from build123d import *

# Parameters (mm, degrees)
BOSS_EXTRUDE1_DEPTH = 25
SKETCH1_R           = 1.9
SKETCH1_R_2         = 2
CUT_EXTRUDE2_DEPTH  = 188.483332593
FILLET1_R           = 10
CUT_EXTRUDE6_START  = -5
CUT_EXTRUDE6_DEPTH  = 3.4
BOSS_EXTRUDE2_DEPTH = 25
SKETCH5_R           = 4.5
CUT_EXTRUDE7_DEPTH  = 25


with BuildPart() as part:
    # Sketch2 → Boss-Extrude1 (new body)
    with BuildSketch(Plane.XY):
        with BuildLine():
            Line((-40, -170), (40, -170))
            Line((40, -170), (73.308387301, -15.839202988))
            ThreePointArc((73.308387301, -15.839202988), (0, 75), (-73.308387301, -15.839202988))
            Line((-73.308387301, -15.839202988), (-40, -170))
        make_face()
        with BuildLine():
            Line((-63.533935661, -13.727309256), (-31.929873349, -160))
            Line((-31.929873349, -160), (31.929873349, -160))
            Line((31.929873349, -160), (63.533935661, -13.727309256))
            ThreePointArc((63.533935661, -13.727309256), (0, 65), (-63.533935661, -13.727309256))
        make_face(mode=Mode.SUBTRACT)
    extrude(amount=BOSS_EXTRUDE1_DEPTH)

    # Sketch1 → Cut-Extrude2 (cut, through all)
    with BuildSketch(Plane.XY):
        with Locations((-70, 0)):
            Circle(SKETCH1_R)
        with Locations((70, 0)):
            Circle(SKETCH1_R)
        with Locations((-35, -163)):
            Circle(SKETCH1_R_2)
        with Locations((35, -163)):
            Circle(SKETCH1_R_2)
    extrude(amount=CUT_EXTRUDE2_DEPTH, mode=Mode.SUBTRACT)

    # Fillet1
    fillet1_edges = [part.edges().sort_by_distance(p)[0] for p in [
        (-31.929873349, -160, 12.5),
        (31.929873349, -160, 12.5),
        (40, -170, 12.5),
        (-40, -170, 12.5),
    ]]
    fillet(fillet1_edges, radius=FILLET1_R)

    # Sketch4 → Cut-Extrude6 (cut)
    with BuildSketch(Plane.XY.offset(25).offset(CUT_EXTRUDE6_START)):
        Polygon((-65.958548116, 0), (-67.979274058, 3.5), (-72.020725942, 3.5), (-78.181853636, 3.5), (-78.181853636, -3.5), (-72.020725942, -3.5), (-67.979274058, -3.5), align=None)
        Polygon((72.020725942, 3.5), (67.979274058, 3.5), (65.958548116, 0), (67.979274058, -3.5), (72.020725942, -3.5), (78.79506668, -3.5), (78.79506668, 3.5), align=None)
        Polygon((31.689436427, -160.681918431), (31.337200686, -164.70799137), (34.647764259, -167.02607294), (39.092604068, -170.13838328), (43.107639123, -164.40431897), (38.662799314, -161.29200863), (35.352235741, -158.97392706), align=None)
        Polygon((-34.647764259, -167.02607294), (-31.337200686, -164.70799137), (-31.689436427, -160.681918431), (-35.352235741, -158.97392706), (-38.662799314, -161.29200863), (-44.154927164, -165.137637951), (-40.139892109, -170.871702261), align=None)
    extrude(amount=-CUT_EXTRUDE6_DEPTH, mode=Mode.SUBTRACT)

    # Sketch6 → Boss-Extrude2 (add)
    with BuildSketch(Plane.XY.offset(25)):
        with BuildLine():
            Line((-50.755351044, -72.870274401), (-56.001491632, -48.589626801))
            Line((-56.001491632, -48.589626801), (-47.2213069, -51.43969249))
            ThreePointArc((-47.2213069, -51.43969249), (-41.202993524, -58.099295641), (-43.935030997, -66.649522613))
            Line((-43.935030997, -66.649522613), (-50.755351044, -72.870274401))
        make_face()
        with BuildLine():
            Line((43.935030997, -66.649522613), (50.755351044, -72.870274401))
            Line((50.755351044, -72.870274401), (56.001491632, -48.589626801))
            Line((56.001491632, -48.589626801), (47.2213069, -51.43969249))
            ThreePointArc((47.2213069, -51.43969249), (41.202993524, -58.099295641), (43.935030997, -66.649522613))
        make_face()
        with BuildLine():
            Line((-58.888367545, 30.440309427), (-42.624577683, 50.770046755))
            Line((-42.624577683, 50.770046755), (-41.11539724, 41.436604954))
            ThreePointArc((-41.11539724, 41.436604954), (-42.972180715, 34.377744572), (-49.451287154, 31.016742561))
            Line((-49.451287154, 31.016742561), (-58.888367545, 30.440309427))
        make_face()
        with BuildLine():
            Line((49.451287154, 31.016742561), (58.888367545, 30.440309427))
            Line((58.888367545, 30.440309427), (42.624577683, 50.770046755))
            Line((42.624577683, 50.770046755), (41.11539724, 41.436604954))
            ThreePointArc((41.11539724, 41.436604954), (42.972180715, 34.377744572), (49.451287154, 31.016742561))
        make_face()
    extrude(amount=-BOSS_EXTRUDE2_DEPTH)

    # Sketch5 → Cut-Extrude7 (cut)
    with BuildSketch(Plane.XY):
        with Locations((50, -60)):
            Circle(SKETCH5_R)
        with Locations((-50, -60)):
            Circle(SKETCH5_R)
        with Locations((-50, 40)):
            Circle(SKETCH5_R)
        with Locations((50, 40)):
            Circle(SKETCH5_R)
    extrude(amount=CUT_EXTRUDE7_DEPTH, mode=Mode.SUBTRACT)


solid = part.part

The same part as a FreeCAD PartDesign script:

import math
import FreeCAD as App
import Part
import Sketcher

V = App.Vector
Q = App.Units.Quantity


def edges_at(feature, points):
    """Names of the edges that pass closest to the given points."""
    edges = feature.Shape.Edges
    near = lambda p: min(range(len(edges)), key=lambda i: edges[i].distToShape(Part.Vertex(*p))[0])
    return sorted({f"Edge{near(p) + 1}" for p in points})

doc = App.newDocument("Part")
body = doc.addObject("PartDesign::Body", "Body")

# Sketch on XY plane
sketch1 = body.newObject("Sketcher::SketchObject", "Sketch")
sketch1.AttachmentSupport = (doc.getObject("XY_Plane"), [""])
sketch1.MapMode = "FlatFace"
sketch1.addGeometry(Part.LineSegment(V(-40, -170, 0), V(40, -170, 0)), False)
sketch1.addGeometry(Part.LineSegment(V(40, -170, 0), V(73, -16, 0)), False)
sketch1.addGeometry(Part.ArcOfCircle(Part.Circle(V(0, 0, 0), V(0, 0, 1), 75), math.radians(-12), math.radians(192)), False)
sketch1.addGeometry(Part.LineSegment(V(-73, -16, 0), V(-40, -170, 0)), False)
sketch1.addGeometry(Part.LineSegment(V(-32, -160, 0), V(-64, -14, 0)), False)
sketch1.addGeometry(Part.ArcOfCircle(Part.Circle(V(0, 0, 0), V(0, 0, 1), 65), math.radians(-12), math.radians(192)), False)
sketch1.addGeometry(Part.LineSegment(V(64, -14, 0), V(32, -160, 0)), False)
sketch1.addGeometry(Part.LineSegment(V(32, -160, 0), V(-32, -160, 0)), False)
sketch1.addConstraint(Sketcher.Constraint("Coincident", 0, 2, 1, 1))
sketch1.addConstraint(Sketcher.Constraint("Tangent", 1, 2, 2, 1))
sketch1.addConstraint(Sketcher.Constraint("Tangent", 2, 2, 3, 1))
sketch1.addConstraint(Sketcher.Constraint("Coincident", 3, 2, 0, 1))
sketch1.addConstraint(Sketcher.Constraint("Tangent", 4, 2, 5, 2))
sketch1.addConstraint(Sketcher.Constraint("Tangent", 5, 1, 6, 1))
sketch1.addConstraint(Sketcher.Constraint("Coincident", 6, 2, 7, 1))
sketch1.addConstraint(Sketcher.Constraint("Coincident", 7, 2, 4, 1))
sketch1.addConstraint(Sketcher.Constraint("Horizontal", 0))
sketch1.addConstraint(Sketcher.Constraint("Horizontal", 7))
sketch1.addConstraint(Sketcher.Constraint("Coincident", 2, 3, -1, 1))
sketch1.addConstraint(Sketcher.Constraint("Coincident", 5, 3, -1, 1))
sketch1.addConstraint(Sketcher.Constraint("Parallel", 3, 4))
sketch1.addConstraint(Sketcher.Constraint("Parallel", 1, 6))
sketch1.addConstraint(Sketcher.Constraint("Horizontal", 1, 2, 2, 2))
sketch1.addConstraint(Sketcher.Constraint("Radius", 2, Q("75 mm")))
sketch1.addConstraint(Sketcher.Constraint("Radius", 5, Q("65 mm")))
sketch1.addConstraint(Sketcher.Constraint("DistanceX", 0, 1, 0, 2, Q("80 mm")))
sketch1.addConstraint(Sketcher.Constraint("DistanceY", 0, 2, -1, 1, Q("170 mm")))
sketch1.addConstraint(Sketcher.Constraint("DistanceY", 6, 2, -1, 1, Q("160 mm")))
pad1 = body.newObject("PartDesign::Pad", "Pad")
pad1.Profile = sketch1
pad1.Length = 25

# Sketch on XY plane
sketch2 = body.newObject("Sketcher::SketchObject", "Sketch001")
sketch2.AttachmentSupport = (doc.getObject("XY_Plane"), [""])
sketch2.MapMode = "FlatFace"
sketch2.addGeometry(Part.Circle(V(-70, 0, 0), V(0, 0, 1), 1.9), False)
sketch2.addGeometry(Part.Circle(V(70, 0, 0), V(0, 0, 1), 1.9), False)
sketch2.addGeometry(Part.Circle(V(-35, -163, 0), V(0, 0, 1), 2), False)
sketch2.addGeometry(Part.Circle(V(35, -163, 0), V(0, 0, 1), 2), False)
sketch2.addConstraint(Sketcher.Constraint("Equal", 0, 1))
sketch2.addConstraint(Sketcher.Constraint("Equal", 2, 3))
sketch2.addConstraint(Sketcher.Constraint("Symmetric", 0, 3, 1, 3, -1, 1))
sketch2.addConstraint(Sketcher.Constraint("Symmetric", 2, 3, 3, 3, -2))
sketch2.addConstraint(Sketcher.Constraint("PointOnObject", 0, 3, -1))
sketch2.addConstraint(Sketcher.Constraint("Diameter", 2, Q("4 mm")))
sketch2.addConstraint(Sketcher.Constraint("Diameter", 0, Q("3.8 mm")))
sketch2.addConstraint(Sketcher.Constraint("DistanceX", 0, 3, -1, 1, Q("70 mm")))
sketch2.addConstraint(Sketcher.Constraint("DistanceX", 2, 3, -1, 1, Q("35 mm")))
sketch2.addConstraint(Sketcher.Constraint("DistanceY", 2, 3, -1, 1, Q("163 mm")))
pocket1 = body.newObject("PartDesign::Pocket", "Pocket")
pocket1.Profile = sketch2
pocket1.Type = "ThroughAll"
pocket1.Reversed = True
doc.recompute()

fillet = body.newObject("PartDesign::Fillet", "Fillet")
fillet.Base = (pocket1, edges_at(pocket1, [
    (-31.93, -160, 12.5),
    (31.93, -160, 12.5),
    (40, -170, 12.5),
    (-40, -170, 12.5),
]))
fillet.Radius = 10

# Sketch on XY plane
sketch3 = body.newObject("Sketcher::SketchObject", "Sketch002")
sketch3.AttachmentSupport = (doc.getObject("XY_Plane"), [""])
sketch3.MapMode = "FlatFace"
sketch3.AttachmentOffset = App.Placement(V(0, 0, 20), App.Rotation())
sketch3.addGeometry(Part.LineSegment(V(-66, 0, 0), V(-68, 3.5, 0)), False)
sketch3.addGeometry(Part.LineSegment(V(-68, 3.5, 0), V(-78.2, 3.5, 0)), False)
sketch3.addGeometry(Part.LineSegment(V(-78.2, 3.5, 0), V(-78.2, -3.5, 0)), False)
sketch3.addGeometry(Part.LineSegment(V(-78.2, -3.5, 0), V(-68, -3.5, 0)), False)
sketch3.addGeometry(Part.LineSegment(V(-68, -3.5, 0), V(-66, 0, 0)), False)
sketch3.addGeometry(Part.LineSegment(V(68, 3.5, 0), V(66, 0, 0)), False)
sketch3.addGeometry(Part.LineSegment(V(66, 0, 0), V(68, -3.5, 0)), False)
sketch3.addGeometry(Part.LineSegment(V(68, -3.5, 0), V(78.8, -3.5, 0)), False)
sketch3.addGeometry(Part.LineSegment(V(78.8, -3.5, 0), V(78.8, 3.5, 0)), False)
sketch3.addGeometry(Part.LineSegment(V(78.8, 3.5, 0), V(68, 3.5, 0)), False)
sketch3.addGeometry(Part.LineSegment(V(31.7, -160.7, 0), V(31.3, -164.7, 0)), False)
sketch3.addGeometry(Part.LineSegment(V(31.3, -164.7, 0), V(34.6, -167, 0)), False)
sketch3.addGeometry(Part.LineSegment(V(34.6, -167, 0), V(39.1, -170.1, 0)), False)
sketch3.addGeometry(Part.LineSegment(V(39.1, -170.1, 0), V(43.1, -164.4, 0)), False)
sketch3.addGeometry(Part.LineSegment(V(43.1, -164.4, 0), V(38.7, -161.3, 0)), False)
sketch3.addGeometry(Part.LineSegment(V(38.7, -161.3, 0), V(35.4, -159, 0)), False)
sketch3.addGeometry(Part.LineSegment(V(35.4, -159, 0), V(31.7, -160.7, 0)), False)
sketch3.addGeometry(Part.LineSegment(V(-34.6, -167, 0), V(-31.3, -164.7, 0)), False)
sketch3.addGeometry(Part.LineSegment(V(-31.3, -164.7, 0), V(-31.7, -160.7, 0)), False)
sketch3.addGeometry(Part.LineSegment(V(-31.7, -160.7, 0), V(-35.4, -159, 0)), False)
sketch3.addGeometry(Part.LineSegment(V(-35.4, -159, 0), V(-38.7, -161.3, 0)), False)
sketch3.addGeometry(Part.LineSegment(V(-38.7, -161.3, 0), V(-44.2, -165.1, 0)), False)
sketch3.addGeometry(Part.LineSegment(V(-44.2, -165.1, 0), V(-40.1, -170.9, 0)), False)
sketch3.addGeometry(Part.LineSegment(V(-40.1, -170.9, 0), V(-34.6, -167, 0)), False)
sketch3.addConstraint(Sketcher.Constraint("Coincident", 0, 2, 1, 1))
sketch3.addConstraint(Sketcher.Constraint("Coincident", 1, 2, 2, 1))
sketch3.addConstraint(Sketcher.Constraint("Coincident", 2, 2, 3, 1))
sketch3.addConstraint(Sketcher.Constraint("Coincident", 3, 2, 4, 1))
sketch3.addConstraint(Sketcher.Constraint("Coincident", 4, 2, 0, 1))
sketch3.addConstraint(Sketcher.Constraint("Coincident", 5, 2, 6, 1))
sketch3.addConstraint(Sketcher.Constraint("Coincident", 6, 2, 7, 1))
sketch3.addConstraint(Sketcher.Constraint("Coincident", 7, 2, 8, 1))
sketch3.addConstraint(Sketcher.Constraint("Coincident", 8, 2, 9, 1))
sketch3.addConstraint(Sketcher.Constraint("Coincident", 9, 2, 5, 1))
sketch3.addConstraint(Sketcher.Constraint("Coincident", 10, 2, 11, 1))
sketch3.addConstraint(Sketcher.Constraint("Coincident", 11, 2, 12, 1))
sketch3.addConstraint(Sketcher.Constraint("Coincident", 12, 2, 13, 1))
sketch3.addConstraint(Sketcher.Constraint("Coincident", 13, 2, 14, 1))
sketch3.addConstraint(Sketcher.Constraint("Coincident", 14, 2, 15, 1))
sketch3.addConstraint(Sketcher.Constraint("Coincident", 15, 2, 16, 1))
sketch3.addConstraint(Sketcher.Constraint("Coincident", 16, 2, 10, 1))
sketch3.addConstraint(Sketcher.Constraint("Coincident", 17, 2, 18, 1))
sketch3.addConstraint(Sketcher.Constraint("Coincident", 18, 2, 19, 1))
sketch3.addConstraint(Sketcher.Constraint("Coincident", 19, 2, 20, 1))
sketch3.addConstraint(Sketcher.Constraint("Coincident", 20, 2, 21, 1))
sketch3.addConstraint(Sketcher.Constraint("Coincident", 21, 2, 22, 1))
sketch3.addConstraint(Sketcher.Constraint("Coincident", 22, 2, 23, 1))
sketch3.addConstraint(Sketcher.Constraint("Coincident", 23, 2, 17, 1))
sketch3.addConstraint(Sketcher.Constraint("Horizontal", 1))
sketch3.addConstraint(Sketcher.Constraint("Vertical", 2))
sketch3.addConstraint(Sketcher.Constraint("Horizontal", 3))
sketch3.addConstraint(Sketcher.Constraint("Horizontal", 7))
sketch3.addConstraint(Sketcher.Constraint("Vertical", 8))
sketch3.addConstraint(Sketcher.Constraint("Horizontal", 9))
sketch3.addConstraint(Sketcher.Constraint("Symmetric", 4, 2, 5, 2, -1, 1))
sketch3.addConstraint(Sketcher.Constraint("Symmetric", 0, 2, 6, 2, -1, 1))
sketch3.addConstraint(Sketcher.Constraint("Symmetric", 3, 2, 9, 2, -1, 1))
sketch3.addConstraint(Sketcher.Constraint("Symmetric", 3, 2, 6, 2, -2))
sketch3.addConstraint(Sketcher.Constraint("Symmetric", 10, 2, 17, 2, -2))
sketch3.addConstraint(Sketcher.Constraint("Symmetric", 16, 2, 18, 2, -2))
sketch3.addConstraint(Sketcher.Constraint("Symmetric", 15, 2, 19, 2, -2))
sketch3.addConstraint(Sketcher.Constraint("Symmetric", 14, 2, 20, 2, -2))
sketch3.addConstraint(Sketcher.Constraint("Symmetric", 11, 2, 23, 2, -2))
sketch3.addConstraint(Sketcher.Constraint("PointOnObject", 4, 2, -1))
sketch3.addConstraint(Sketcher.Constraint("Parallel", 11, 12))
sketch3.addConstraint(Sketcher.Constraint("Perpendicular", 12, 13))
sketch3.addConstraint(Sketcher.Constraint("Perpendicular", 13, 14))
sketch3.addConstraint(Sketcher.Constraint("Parallel", 14, 15))
sketch3.addConstraint(Sketcher.Constraint("Parallel", 20, 21))
sketch3.addConstraint(Sketcher.Constraint("Perpendicular", 21, 22))
sketch3.addConstraint(Sketcher.Constraint("Perpendicular", 22, 23))
sketch3.addConstraint(Sketcher.Constraint("Equal", 6, 10))
sketch3.addConstraint(Sketcher.Constraint("Equal", 10, 11))
sketch3.addConstraint(Sketcher.Constraint("Equal", 12, 14))
sketch3.addConstraint(Sketcher.Constraint("Equal", 11, 15))
sketch3.addConstraint(Sketcher.Constraint("Equal", 15, 16))
sketch3.addConstraint(Sketcher.Constraint("DistanceY", 2, 2, 2, 1, Q("7 mm")))
sketch3.addConstraint(Sketcher.Constraint("Angle", 0, Q("120 deg")))
sketch3.addConstraint(Sketcher.Constraint("Angle", 10, Q("-95 deg")))
sketch3.addConstraint(Sketcher.Constraint("Angle", 11, Q("-35 deg")))
sketch3.addConstraint(Sketcher.Constraint("DistanceX", 17, 2, 14, 2, Q("70 mm")))
sketch3.addConstraint(Sketcher.Constraint("DistanceX", 1, 2, 1, 1, Q("10.20258 mm")))
sketch3.addConstraint(Sketcher.Constraint("DistanceX", 1, 2, 5, 2, Q("144.140402 mm")))
sketch3.addConstraint(Sketcher.Constraint("Distance", 21, Q("6.70465 mm")))
sketch3.addConstraint(Sketcher.Constraint("DistanceX", 7, 1, 7, 2, Q("10.815793 mm")))
sketch3.addConstraint(Sketcher.Constraint("DistanceY", 10, 2, -1, 1, Q("164.707991 mm")))
sketch3.addConstraint(Sketcher.Constraint("DistanceX", -1, 1, 13, 2, Q("43.107639 mm")))
pocket2 = body.newObject("PartDesign::Pocket", "Pocket001")
pocket2.Profile = sketch3
pocket2.Length = 3.4

# Sketch on XY plane
sketch4 = body.newObject("Sketcher::SketchObject", "Sketch003")
sketch4.AttachmentSupport = (doc.getObject("XY_Plane"), [""])
sketch4.MapMode = "FlatFace"
sketch4.AttachmentOffset = App.Placement(V(0, 0, 25), App.Rotation())
sketch4.addGeometry(Part.LineSegment(V(-56, -49, 0), V(-51, -73, 0)), False)
sketch4.addGeometry(Part.LineSegment(V(-51, -73, 0), V(-44, -67, 0)), False)
sketch4.addGeometry(Part.ArcOfCircle(Part.Circle(V(-50, -60, 0), V(0, 0, 1), 9), math.radians(-48), math.radians(72)), False)
sketch4.addGeometry(Part.LineSegment(V(-47, -51, 0), V(-56, -49, 0)), False)
sketch4.addGeometry(Part.LineSegment(V(44, -67, 0), V(51, -73, 0)), False)
sketch4.addGeometry(Part.LineSegment(V(51, -73, 0), V(56, -49, 0)), False)
sketch4.addGeometry(Part.LineSegment(V(56, -49, 0), V(47, -51, 0)), False)
sketch4.addGeometry(Part.ArcOfCircle(Part.Circle(V(50, -60, 0), V(0, 0, 1), 9), math.radians(108), math.radians(228)), False)
sketch4.addGeometry(Part.LineSegment(V(-43, 51, 0), V(-59, 30, 0)), False)
sketch4.addGeometry(Part.LineSegment(V(-59, 30, 0), V(-49, 31, 0)), False)
sketch4.addGeometry(Part.ArcOfCircle(Part.Circle(V(-50, 40, 0), V(0, 0, 1), 9), math.radians(-87), math.radians(9)), False)
sketch4.addGeometry(Part.LineSegment(V(-41, 41, 0), V(-43, 51, 0)), False)
sketch4.addGeometry(Part.LineSegment(V(49, 31, 0), V(59, 30, 0)), False)
sketch4.addGeometry(Part.LineSegment(V(59, 30, 0), V(43, 51, 0)), False)
sketch4.addGeometry(Part.LineSegment(V(43, 51, 0), V(41, 41, 0)), False)
sketch4.addGeometry(Part.ArcOfCircle(Part.Circle(V(50, 40, 0), V(0, 0, 1), 9), math.radians(171), math.radians(267)), False)
sketch4.addConstraint(Sketcher.Constraint("Coincident", 0, 2, 1, 1))
sketch4.addConstraint(Sketcher.Constraint("Tangent", 1, 2, 2, 1))
sketch4.addConstraint(Sketcher.Constraint("Tangent", 2, 2, 3, 1))
sketch4.addConstraint(Sketcher.Constraint("Coincident", 3, 2, 0, 1))
sketch4.addConstraint(Sketcher.Constraint("Coincident", 4, 2, 5, 1))
sketch4.addConstraint(Sketcher.Constraint("Coincident", 5, 2, 6, 1))
sketch4.addConstraint(Sketcher.Constraint("Tangent", 6, 2, 7, 1))
sketch4.addConstraint(Sketcher.Constraint("Tangent", 7, 2, 4, 1))
sketch4.addConstraint(Sketcher.Constraint("Coincident", 8, 2, 9, 1))
sketch4.addConstraint(Sketcher.Constraint("Tangent", 9, 2, 10, 1))
sketch4.addConstraint(Sketcher.Constraint("Tangent", 10, 2, 11, 1))
sketch4.addConstraint(Sketcher.Constraint("Coincident", 11, 2, 8, 1))
sketch4.addConstraint(Sketcher.Constraint("Coincident", 12, 2, 13, 1))
sketch4.addConstraint(Sketcher.Constraint("Coincident", 13, 2, 14, 1))
sketch4.addConstraint(Sketcher.Constraint("Tangent", 14, 2, 15, 1))
sketch4.addConstraint(Sketcher.Constraint("Tangent", 15, 2, 12, 1))
sketch4.addConstraint(Sketcher.Constraint("Equal", 2, 7))
sketch4.addConstraint(Sketcher.Constraint("Equal", 7, 10))
sketch4.addConstraint(Sketcher.Constraint("Equal", 10, 15))
sketch4.addConstraint(Sketcher.Constraint("Symmetric", 2, 3, 7, 3, -2))
sketch4.addConstraint(Sketcher.Constraint("Symmetric", 10, 3, 15, 3, -2))
sketch4.addConstraint(Sketcher.Constraint("Symmetric", 0, 2, 4, 2, -2))
sketch4.addConstraint(Sketcher.Constraint("Symmetric", 3, 2, 5, 2, -2))
sketch4.addConstraint(Sketcher.Constraint("Symmetric", 8, 2, 12, 2, -2))
sketch4.addConstraint(Sketcher.Constraint("Symmetric", 11, 2, 13, 2, -2))
sketch4.addConstraint(Sketcher.Constraint("Vertical", 2, 3, 10, 3))
sketch4.addConstraint(Sketcher.Constraint("Equal", 1, 3))
sketch4.addConstraint(Sketcher.Constraint("Equal", 9, 11))
sketch4.addConstraint(Sketcher.Constraint("Radius", 2, Q("9 mm")))
sketch4.addConstraint(Sketcher.Constraint("DistanceX", 2, 3, -1, 1, Q("50 mm")))
sketch4.addConstraint(Sketcher.Constraint("DistanceY", 2, 3, -1, 1, Q("60 mm")))
sketch4.addConstraint(Sketcher.Constraint("DistanceY", -1, 1, 10, 3, Q("40 mm")))
sketch4.addConstraint(Sketcher.Constraint("DistanceY", 2, 2, 8, 2, Q("81.880002 mm")))
sketch4.addConstraint(Sketcher.Constraint("DistanceX", 2, 2, 5, 2, Q("103.222799 mm")))
sketch4.addConstraint(Sketcher.Constraint("Distance", 0, Q("24.840931 mm")))
sketch4.addConstraint(Sketcher.Constraint("Distance", 1, Q("9.231171 mm")))
sketch4.addConstraint(Sketcher.Constraint("Distance", 9, Q("9.454669 mm")))
sketch4.addConstraint(Sketcher.Constraint("DistanceX", 9, 2, 10, 2, Q("8.33589 mm")))
pad2 = body.newObject("PartDesign::Pad", "Pad001")
pad2.Profile = sketch4
pad2.Length = 25
pad2.Reversed = True

# Sketch on XY plane
sketch5 = body.newObject("Sketcher::SketchObject", "Sketch004")
sketch5.AttachmentSupport = (doc.getObject("XY_Plane"), [""])
sketch5.MapMode = "FlatFace"
sketch5.addGeometry(Part.Circle(V(50, -60, 0), V(0, 0, 1), 4.5), False)
sketch5.addGeometry(Part.Circle(V(-50, -60, 0), V(0, 0, 1), 4.5), False)
sketch5.addGeometry(Part.Circle(V(-50, 40, 0), V(0, 0, 1), 4.5), False)
sketch5.addGeometry(Part.Circle(V(50, 40, 0), V(0, 0, 1), 4.5), False)
sketch5.addConstraint(Sketcher.Constraint("Equal", 0, 1))
sketch5.addConstraint(Sketcher.Constraint("Equal", 1, 2))
sketch5.addConstraint(Sketcher.Constraint("Equal", 2, 3))
sketch5.addConstraint(Sketcher.Constraint("Symmetric", 0, 3, 1, 3, -2))
sketch5.addConstraint(Sketcher.Constraint("Symmetric", 2, 3, 3, 3, -2))
sketch5.addConstraint(Sketcher.Constraint("Vertical", 1, 3, 2, 3))
sketch5.addConstraint(Sketcher.Constraint("Diameter", 0, Q("9 mm")))
sketch5.addConstraint(Sketcher.Constraint("DistanceX", -1, 1, 0, 3, Q("50 mm")))
sketch5.addConstraint(Sketcher.Constraint("DistanceY", 0, 3, -1, 1, Q("60 mm")))
sketch5.addConstraint(Sketcher.Constraint("DistanceY", -1, 1, 2, 3, Q("40 mm")))
pocket3 = body.newObject("PartDesign::Pocket", "Pocket002")
pocket3.Profile = sketch5
pocket3.Length = 25
pocket3.Reversed = True

doc.recompute()
